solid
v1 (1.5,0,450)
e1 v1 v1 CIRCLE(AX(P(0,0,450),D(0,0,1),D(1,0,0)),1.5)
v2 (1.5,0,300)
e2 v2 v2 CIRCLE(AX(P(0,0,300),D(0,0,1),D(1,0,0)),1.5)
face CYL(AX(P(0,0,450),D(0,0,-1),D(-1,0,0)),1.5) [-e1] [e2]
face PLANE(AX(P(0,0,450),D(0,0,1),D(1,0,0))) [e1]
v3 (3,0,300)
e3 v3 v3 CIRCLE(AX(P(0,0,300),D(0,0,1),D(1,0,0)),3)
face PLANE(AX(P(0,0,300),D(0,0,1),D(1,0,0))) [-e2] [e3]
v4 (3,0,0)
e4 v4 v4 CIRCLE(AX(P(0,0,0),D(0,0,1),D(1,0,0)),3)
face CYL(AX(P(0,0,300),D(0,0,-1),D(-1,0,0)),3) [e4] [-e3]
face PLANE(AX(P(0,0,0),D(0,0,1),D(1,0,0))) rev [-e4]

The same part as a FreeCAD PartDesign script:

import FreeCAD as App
import Part
import Sketcher

V = App.Vector
Q = App.Units.Quantity

doc = App.newDocument("Part")
body = doc.addObject("PartDesign::Body", "Body")

sketch1 = body.newObject("Sketcher::SketchObject", "Sketch")
sketch1.AttachmentSupport = (doc.getObject("XY_Plane"), [""])
sketch1.MapMode = "FlatFace"
sketch1.addGeometry(Part.Circle(V(0, 0, 0), V(0, 0, 1), 3), False)
sketch1.addConstraint([
    Sketcher.Constraint("Coincident", 0, 3, -1, 1),
    Sketcher.Constraint("Diameter", 0, Q("6 mm")),
])
pad1 = body.newObject("PartDesign::Pad", "Pad")
pad1.Profile = sketch1
pad1.Length = 300

sketch2 = body.newObject("Sketcher::SketchObject", "Sketch001")
sketch2.AttachmentSupport = (doc.getObject("XY_Plane"), [""])
sketch2.MapMode = "FlatFace"
sketch2.AttachmentOffset = App.Placement(V(0, 0, 300), App.Rotation())
sketch2.addGeometry(Part.Circle(V(0, 0, 0), V(0, 0, 1), 1.5), False)
sketch2.addConstraint([
    Sketcher.Constraint("Coincident", 0, 3, -1, 1),
    Sketcher.Constraint("Diameter", 0, Q("3 mm")),
])
pad2 = body.newObject("PartDesign::Pad", "Pad001")
pad2.Profile = sketch2
pad2.Length = 150

doc.recompute()
